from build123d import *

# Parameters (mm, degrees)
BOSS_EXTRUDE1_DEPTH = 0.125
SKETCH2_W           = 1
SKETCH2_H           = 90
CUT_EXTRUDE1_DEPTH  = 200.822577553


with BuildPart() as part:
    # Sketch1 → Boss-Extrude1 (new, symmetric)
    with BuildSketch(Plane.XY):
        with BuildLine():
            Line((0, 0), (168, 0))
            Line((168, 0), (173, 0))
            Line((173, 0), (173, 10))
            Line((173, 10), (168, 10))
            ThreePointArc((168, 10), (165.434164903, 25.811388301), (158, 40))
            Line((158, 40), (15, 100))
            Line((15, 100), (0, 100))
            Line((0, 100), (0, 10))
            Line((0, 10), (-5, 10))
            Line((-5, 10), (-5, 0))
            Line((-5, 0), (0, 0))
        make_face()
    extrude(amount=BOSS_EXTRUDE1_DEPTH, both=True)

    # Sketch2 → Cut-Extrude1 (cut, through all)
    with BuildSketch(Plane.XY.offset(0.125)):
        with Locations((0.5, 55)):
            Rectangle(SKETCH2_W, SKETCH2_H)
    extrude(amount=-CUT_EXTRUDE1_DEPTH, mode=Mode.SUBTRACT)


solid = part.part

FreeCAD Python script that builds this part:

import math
import FreeCAD as App
import Part
import Sketcher

V = App.Vector

doc = App.newDocument("Part")
body = doc.addObject("PartDesign::Body", "Body")

# Sketch on XY plane
sketch1 = doc.addObject("Sketcher::SketchObject", "Sketch")
body.addObject(sketch1)
sketch1.AttachmentSupport = (doc.XY_Plane, [""])
sketch1.MapMode = "FlatFace"
sketch1.addGeometry(Part.LineSegment(V(173, 0, 0), V(173, 10, 0)), False)
sketch1.addGeometry(Part.LineSegment(V(173, 10, 0), V(168, 10, 0)), False)
sketch1.addGeometry(Part.ArcOfCircle(Part.Circle(V(118, 10, 0), V(0, 0, 1), 50), math.radians(0), math.radians(37)), False)
sketch1.addGeometry(Part.LineSegment(V(158, 40, 0), V(15, 100, 0)), False)
sketch1.addGeometry(Part.LineSegment(V(15, 100, 0), V(0, 100, 0)), False)
sketch1.addGeometry(Part.LineSegment(V(0, 100, 0), V(0, 10, 0)), False)
sketch1.addGeometry(Part.LineSegment(V(0, 10, 0), V(-5, 10, 0)), False)
sketch1.addGeometry(Part.LineSegment(V(-5, 10, 0), V(-5, 0, 0)), False)
sketch1.addGeometry(Part.LineSegment(V(-5, 0, 0), V(173, 0, 0)), False)
sketch1.addConstraint(Sketcher.Constraint("Coincident", 0, 2, 1, 1))
sketch1.addConstraint(Sketcher.Constraint("Coincident", 1, 2, 2, 1))
sketch1.addConstraint(Sketcher.Constraint("Coincident", 2, 2, 3, 1))
sketch1.addConstraint(Sketcher.Constraint("Coincident", 3, 2, 4, 1))
sketch1.addConstraint(Sketcher.Constraint("Coincident", 4, 2, 5, 1))
sketch1.addConstraint(Sketcher.Constraint("Coincident", 5, 2, 6, 1))
sketch1.addConstraint(Sketcher.Constraint("Coincident", 6, 2, 7, 1))
sketch1.addConstraint(Sketcher.Constraint("Coincident", 7, 2, 8, 1))
sketch1.addConstraint(Sketcher.Constraint("Coincident", 8, 2, 0, 1))
sketch1.addConstraint(Sketcher.Constraint("Vertical", 0))
sketch1.addConstraint(Sketcher.Constraint("Horizontal", 1))
sketch1.addConstraint(Sketcher.Constraint("Horizontal", 4))
sketch1.addConstraint(Sketcher.Constraint("Vertical", 5))
sketch1.addConstraint(Sketcher.Constraint("Horizontal", 6))
sketch1.addConstraint(Sketcher.Constraint("Vertical", 7))
sketch1.addConstraint(Sketcher.Constraint("Horizontal", 8))
sketch1.addConstraint(Sketcher.Constraint("PointOnObject", 4, 2, -2))
sketch1.addConstraint(Sketcher.Constraint("PointOnObject", 7, 2, -1))
sketch1.addConstraint(Sketcher.Constraint("Horizontal", 2, 3, 0, 2))
sketch1.addConstraint(Sketcher.Constraint("Horizontal", 1, 2, 5, 2))
sketch1.addConstraint(Sketcher.Constraint("Equal", 1, 6))
sketch1.addConstraint(Sketcher.Constraint("Radius", 2, 50.0))
sketch1.addConstraint(Sketcher.Constraint("DistanceX", 1, 2, 1, 1, 5.0))
sketch1.addConstraint(Sketcher.Constraint("DistanceX", 4, 2, 4, 1, 15.0))
sketch1.addConstraint(Sketcher.Constraint("DistanceX", 8, 1, 8, 2, 178.0))
sketch1.addConstraint(Sketcher.Constraint("DistanceY", 0, 1, 0, 2, 10.0))
sketch1.addConstraint(Sketcher.Constraint("DistanceY", 5, 2, 5, 1, 90.0))
sketch1.addConstraint(Sketcher.Constraint("DistanceX", -1, 1, 2, 2, 158.0))
pad1 = doc.addObject("PartDesign::Pad", "Pad")
body.addObject(pad1)
pad1.Profile = sketch1
pad1.Length = 0.25
pad1.Midplane = True

# Sketch on XY plane
sketch2 = doc.addObject("Sketcher::SketchObject", "Sketch001")
body.addObject(sketch2)
sketch2.AttachmentSupport = (doc.XY_Plane, [""])
sketch2.MapMode = "FlatFace"
sketch2.AttachmentOffset = App.Placement(V(0, 0, 0.125), App.Rotation())
sketch2.addGeometry(Part.LineSegment(V(0, 100, 0), V(0, 10, 0)), False)
sketch2.addGeometry(Part.LineSegment(V(0, 10, 0), V(1, 10, 0)), False)
sketch2.addGeometry(Part.LineSegment(V(1, 10, 0), V(1, 100, 0)), False)
sketch2.addGeometry(Part.LineSegment(V(1, 100, 0), V(0, 100, 0)), False)
sketch2.addConstraint(Sketcher.Constraint("Coincident", 0, 2, 1, 1))
sketch2.addConstraint(Sketcher.Constraint("Coincident", 1, 2, 2, 1))
sketch2.addConstraint(Sketcher.Constraint("Coincident", 2, 2, 3, 1))
sketch2.addConstraint(Sketcher.Constraint("Coincident", 3, 2, 0, 1))
sketch2.addConstraint(Sketcher.Constraint("Vertical", 0))
sketch2.addConstraint(Sketcher.Constraint("Horizontal", 1))
sketch2.addConstraint(Sketcher.Constraint("Vertical", 2))
sketch2.addConstraint(Sketcher.Constraint("Horizontal", 3))
sketch2.addConstraint(Sketcher.Constraint("PointOnObject", 0, 2, -2))
sketch2.addConstraint(Sketcher.Constraint("DistanceX", 1, 1, 1, 2, 1.0))
sketch2.addConstraint(Sketcher.Constraint("DistanceY", 0, 2, 0, 1, 90.0))
sketch2.addConstraint(Sketcher.Constraint("DistanceY", -1, 1, 0, 2, 10.0))
pocket1 = doc.addObject("PartDesign::Pocket", "Pocket")
body.addObject(pocket1)
pocket1.Profile = sketch2
pocket1.Type = "ThroughAll"

doc.recompute()
